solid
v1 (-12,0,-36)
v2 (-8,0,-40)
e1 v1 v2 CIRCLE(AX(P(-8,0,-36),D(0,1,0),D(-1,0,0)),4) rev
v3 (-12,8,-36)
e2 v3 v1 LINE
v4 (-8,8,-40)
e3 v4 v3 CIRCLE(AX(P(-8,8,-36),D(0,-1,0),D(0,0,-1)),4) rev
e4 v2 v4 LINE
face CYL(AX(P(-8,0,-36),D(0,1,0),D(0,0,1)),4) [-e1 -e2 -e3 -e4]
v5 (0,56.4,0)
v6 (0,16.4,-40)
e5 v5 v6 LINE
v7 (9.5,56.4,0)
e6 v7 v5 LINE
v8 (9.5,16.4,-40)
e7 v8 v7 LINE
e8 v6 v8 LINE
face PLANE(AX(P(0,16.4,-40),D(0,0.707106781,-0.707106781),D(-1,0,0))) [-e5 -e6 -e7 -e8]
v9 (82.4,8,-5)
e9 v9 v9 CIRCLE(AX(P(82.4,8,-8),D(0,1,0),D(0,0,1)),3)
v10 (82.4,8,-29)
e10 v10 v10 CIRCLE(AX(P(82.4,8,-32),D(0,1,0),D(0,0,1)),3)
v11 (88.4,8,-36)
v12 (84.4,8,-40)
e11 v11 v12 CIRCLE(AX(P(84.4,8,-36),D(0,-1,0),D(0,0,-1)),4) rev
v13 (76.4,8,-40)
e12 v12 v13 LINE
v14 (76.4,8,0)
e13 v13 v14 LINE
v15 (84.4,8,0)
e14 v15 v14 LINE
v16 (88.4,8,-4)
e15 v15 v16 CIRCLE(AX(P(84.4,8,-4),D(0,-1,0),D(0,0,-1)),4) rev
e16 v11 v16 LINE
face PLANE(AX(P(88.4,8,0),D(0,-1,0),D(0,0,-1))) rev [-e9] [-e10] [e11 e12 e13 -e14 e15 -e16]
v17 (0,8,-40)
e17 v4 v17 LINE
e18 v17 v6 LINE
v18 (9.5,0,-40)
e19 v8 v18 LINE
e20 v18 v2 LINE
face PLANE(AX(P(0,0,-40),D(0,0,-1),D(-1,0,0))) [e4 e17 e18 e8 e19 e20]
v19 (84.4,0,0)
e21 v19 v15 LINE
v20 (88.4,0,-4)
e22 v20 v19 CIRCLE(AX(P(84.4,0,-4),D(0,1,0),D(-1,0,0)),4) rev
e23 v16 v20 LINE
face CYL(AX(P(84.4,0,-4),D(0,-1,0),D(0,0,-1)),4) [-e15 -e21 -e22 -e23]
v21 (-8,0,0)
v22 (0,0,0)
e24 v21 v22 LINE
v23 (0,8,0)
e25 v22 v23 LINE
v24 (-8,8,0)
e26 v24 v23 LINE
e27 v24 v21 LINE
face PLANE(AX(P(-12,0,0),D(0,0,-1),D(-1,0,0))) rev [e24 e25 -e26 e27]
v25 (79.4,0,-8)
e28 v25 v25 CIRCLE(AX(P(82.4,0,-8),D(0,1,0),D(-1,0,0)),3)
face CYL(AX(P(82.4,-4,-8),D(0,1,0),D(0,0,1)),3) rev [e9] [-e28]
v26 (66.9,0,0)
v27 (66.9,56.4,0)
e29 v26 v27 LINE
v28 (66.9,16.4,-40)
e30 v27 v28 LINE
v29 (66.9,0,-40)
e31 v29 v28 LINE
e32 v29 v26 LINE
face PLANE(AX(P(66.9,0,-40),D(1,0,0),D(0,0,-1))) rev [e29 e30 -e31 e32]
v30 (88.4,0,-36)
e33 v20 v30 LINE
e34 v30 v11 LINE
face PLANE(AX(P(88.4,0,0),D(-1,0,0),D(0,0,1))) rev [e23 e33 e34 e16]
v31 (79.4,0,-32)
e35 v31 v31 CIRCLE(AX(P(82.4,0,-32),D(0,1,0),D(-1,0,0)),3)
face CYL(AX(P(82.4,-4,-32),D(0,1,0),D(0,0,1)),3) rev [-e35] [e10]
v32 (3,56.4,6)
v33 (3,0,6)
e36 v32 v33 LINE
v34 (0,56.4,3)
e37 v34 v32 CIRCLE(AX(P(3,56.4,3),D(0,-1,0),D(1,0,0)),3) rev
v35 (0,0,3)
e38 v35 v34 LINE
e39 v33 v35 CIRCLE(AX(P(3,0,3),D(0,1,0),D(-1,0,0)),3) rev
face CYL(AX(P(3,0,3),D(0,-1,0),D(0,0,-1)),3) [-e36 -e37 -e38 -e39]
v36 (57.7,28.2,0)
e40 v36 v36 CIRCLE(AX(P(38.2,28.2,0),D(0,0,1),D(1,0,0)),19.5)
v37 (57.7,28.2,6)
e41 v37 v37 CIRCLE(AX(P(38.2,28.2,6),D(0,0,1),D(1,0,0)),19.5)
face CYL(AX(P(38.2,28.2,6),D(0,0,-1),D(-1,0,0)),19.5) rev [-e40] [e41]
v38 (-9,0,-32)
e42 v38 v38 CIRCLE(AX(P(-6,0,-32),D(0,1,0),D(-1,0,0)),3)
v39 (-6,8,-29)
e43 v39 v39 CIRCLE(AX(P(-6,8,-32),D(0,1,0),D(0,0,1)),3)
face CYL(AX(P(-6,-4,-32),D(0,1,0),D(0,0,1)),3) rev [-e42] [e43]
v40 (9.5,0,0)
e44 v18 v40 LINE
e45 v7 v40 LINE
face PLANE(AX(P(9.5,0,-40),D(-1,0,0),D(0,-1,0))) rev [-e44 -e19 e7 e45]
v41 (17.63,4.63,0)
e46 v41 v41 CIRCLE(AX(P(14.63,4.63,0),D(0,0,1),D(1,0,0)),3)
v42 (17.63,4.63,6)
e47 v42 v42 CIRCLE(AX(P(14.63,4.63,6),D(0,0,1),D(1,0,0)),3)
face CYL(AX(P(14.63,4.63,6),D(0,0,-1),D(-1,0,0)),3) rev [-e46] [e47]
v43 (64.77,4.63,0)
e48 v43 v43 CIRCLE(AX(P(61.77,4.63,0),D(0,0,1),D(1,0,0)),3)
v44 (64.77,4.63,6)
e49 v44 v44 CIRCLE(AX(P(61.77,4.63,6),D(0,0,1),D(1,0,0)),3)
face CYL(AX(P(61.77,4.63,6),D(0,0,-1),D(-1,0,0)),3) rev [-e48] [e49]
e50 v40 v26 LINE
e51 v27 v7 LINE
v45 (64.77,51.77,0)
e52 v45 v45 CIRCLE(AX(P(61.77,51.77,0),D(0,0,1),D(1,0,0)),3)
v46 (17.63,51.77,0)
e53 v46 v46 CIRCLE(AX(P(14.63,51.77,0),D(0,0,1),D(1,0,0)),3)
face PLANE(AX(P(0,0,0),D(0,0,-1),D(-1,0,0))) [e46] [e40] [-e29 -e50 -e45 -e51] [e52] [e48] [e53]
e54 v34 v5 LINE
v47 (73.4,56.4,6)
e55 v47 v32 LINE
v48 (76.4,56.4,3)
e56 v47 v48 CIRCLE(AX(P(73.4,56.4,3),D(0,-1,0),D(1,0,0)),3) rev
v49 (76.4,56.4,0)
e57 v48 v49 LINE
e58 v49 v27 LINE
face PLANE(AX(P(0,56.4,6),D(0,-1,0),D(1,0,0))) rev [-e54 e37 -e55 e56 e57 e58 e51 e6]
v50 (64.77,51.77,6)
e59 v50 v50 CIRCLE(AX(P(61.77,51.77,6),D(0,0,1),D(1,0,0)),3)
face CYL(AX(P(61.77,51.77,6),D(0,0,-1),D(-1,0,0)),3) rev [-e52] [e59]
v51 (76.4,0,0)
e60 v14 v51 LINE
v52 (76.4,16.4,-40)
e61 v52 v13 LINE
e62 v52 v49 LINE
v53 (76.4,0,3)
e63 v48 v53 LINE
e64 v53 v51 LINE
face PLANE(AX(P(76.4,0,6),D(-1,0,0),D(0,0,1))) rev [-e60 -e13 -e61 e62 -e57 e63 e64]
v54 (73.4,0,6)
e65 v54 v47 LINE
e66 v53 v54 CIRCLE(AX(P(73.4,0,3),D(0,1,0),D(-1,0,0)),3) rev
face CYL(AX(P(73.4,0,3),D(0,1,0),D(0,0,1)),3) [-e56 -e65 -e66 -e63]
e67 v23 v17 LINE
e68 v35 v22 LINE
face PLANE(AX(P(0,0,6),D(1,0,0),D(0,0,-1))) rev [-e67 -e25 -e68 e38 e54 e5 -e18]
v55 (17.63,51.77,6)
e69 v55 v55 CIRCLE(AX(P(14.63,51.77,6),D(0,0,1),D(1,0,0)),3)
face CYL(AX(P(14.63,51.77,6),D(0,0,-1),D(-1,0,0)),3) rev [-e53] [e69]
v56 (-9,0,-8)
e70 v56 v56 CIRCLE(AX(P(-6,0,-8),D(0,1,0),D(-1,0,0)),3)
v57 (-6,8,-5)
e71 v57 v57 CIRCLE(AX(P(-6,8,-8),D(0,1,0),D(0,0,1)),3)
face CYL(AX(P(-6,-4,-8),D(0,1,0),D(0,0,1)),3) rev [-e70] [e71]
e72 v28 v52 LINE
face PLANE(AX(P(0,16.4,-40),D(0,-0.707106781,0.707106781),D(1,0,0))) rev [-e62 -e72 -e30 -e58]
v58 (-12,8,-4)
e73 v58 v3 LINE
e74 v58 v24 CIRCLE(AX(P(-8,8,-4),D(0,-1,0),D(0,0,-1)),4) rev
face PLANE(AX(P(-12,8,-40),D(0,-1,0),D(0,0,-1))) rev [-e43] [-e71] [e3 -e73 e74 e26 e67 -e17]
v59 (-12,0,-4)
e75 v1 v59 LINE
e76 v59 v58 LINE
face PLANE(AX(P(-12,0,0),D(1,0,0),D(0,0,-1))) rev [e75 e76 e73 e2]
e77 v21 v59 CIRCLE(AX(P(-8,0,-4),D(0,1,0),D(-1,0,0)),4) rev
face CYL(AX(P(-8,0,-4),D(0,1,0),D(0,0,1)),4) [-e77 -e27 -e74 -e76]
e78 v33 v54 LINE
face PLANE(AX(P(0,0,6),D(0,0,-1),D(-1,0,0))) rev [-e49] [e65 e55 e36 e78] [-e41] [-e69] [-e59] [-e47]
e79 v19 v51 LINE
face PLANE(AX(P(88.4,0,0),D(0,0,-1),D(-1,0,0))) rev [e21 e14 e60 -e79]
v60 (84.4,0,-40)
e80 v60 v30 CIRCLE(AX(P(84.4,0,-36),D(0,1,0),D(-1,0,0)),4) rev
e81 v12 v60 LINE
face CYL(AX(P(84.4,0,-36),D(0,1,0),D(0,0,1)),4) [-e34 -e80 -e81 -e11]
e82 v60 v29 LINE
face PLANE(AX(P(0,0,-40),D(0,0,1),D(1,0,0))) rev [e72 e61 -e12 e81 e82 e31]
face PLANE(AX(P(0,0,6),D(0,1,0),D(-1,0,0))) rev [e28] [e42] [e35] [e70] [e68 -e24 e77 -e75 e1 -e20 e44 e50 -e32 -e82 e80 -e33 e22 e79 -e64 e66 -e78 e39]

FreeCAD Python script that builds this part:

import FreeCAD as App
import Part
import Sketcher
Q = App.Units.Quantity


def edges_at(feature, points):
    """Names of the edges that pass closest to the given points."""
    edges = feature.Shape.Edges
    near = lambda p: min(range(len(edges)), key=lambda i: edges[i].distToShape(Part.Vertex(*p))[0])
    return sorted({f"Edge{near(p) + 1}" for p in points})

doc = App.newDocument("Part")
params = doc.addObject("Spreadsheet::Sheet", "Params")
for row, (alias, value) in enumerate([
    ("sketch1_diameter", "6 mm"),
    ("sketch1_diameter2", "39 mm"),
    ("sketch1_width", "76.4 mm"),
    ("sketch1_height", "56.4 mm"),
    ("pad1_length", "6 mm"),
    ("sketch2_width", "9.5 mm"),
    ("sketch2_height", "56.4 mm"),
    ("pad2_length", "40 mm"),
    ("fillet_radius", "3 mm"),
    ("sketch3_width", "8 mm"),
    ("sketch3_height", "40 mm"),
    ("pad3_length", "12 mm"),
    ("sketch4_width", "8 mm"),
    ("sketch4_height", "40 mm"),
    ("pad4_length", "12 mm"),
    ("fillet2_radius", "4 mm"),
    ("sketch5_diameter", "6 mm"),
    ("pocket1_length", "12 mm"),
    ("chamfer_size", "40 mm"),
], start=1):
    params.set(f"A{row}", alias)
    params.set(f"B{row}", "=" + value)
    params.setAlias(f"B{row}", alias)

body = doc.addObject("PartDesign::Body", "Body")

sketch1 = doc.addObject("Sketcher::SketchObject", "Sketch")
body.addObject(sketch1)
sketch1.AttachmentSupport = (doc.XY_Plane, [""])
sketch1.MapMode = "FlatFace"
sketch1.addGeometry([
    Part.LineSegment(App.Vector(0, 56.4, 0), App.Vector(0, 0, 0)),
    Part.LineSegment(App.Vector(0, 0, 0), App.Vector(76.4, 0, 0)),
    Part.LineSegment(App.Vector(76.4, 0, 0), App.Vector(76.4, 56.4, 0)),
    Part.LineSegment(App.Vector(76.4, 56.4, 0), App.Vector(0, 56.4, 0)),
    Part.Circle(App.Vector(14.6, 4.6, 0), App.Vector(0, 0, 1), 3),
    Part.Circle(App.Vector(61.8, 4.6, 0), App.Vector(0, 0, 1), 3),
    Part.Circle(App.Vector(14.6, 51.8, 0), App.Vector(0, 0, 1), 3),
    Part.Circle(App.Vector(38.2, 28.2, 0), App.Vector(0, 0, 1), 19.5),
    Part.Circle(App.Vector(61.8, 51.8, 0), App.Vector(0, 0, 1), 3),
], False)
sketch1.addConstraint([
    Sketcher.Constraint("Coincident", 0, 2, 1, 1),
    Sketcher.Constraint("Coincident", 1, 2, 2, 1),
    Sketcher.Constraint("Coincident", 2, 2, 3, 1),
    Sketcher.Constraint("Coincident", 3, 2, 0, 1),
    Sketcher.Constraint("Vertical", 0),
    Sketcher.Constraint("Horizontal", 1),
    Sketcher.Constraint("Vertical", 2),
    Sketcher.Constraint("Horizontal", 3),
    Sketcher.Constraint("Coincident", 0, 2, -1, 1),
    Sketcher.Constraint("Equal", 4, 5),
    Sketcher.Constraint("Equal", 5, 6),
    Sketcher.Constraint("Equal", 6, 8),
    Sketcher.Constraint("Horizontal", 4, 3, 5, 3),
    Sketcher.Constraint("Horizontal", 6, 3, 8, 3),
    Sketcher.Constraint("Vertical", 4, 3, 6, 3),
    Sketcher.Constraint("Vertical", 5, 3, 8, 3),
    Sketcher.Constraint("Diameter", 4, Q("6 mm")),
    Sketcher.Constraint("Diameter", 7, Q("39 mm")),
    Sketcher.Constraint("DistanceX", 1, 1, 1, 2, Q("76.4 mm")),
    Sketcher.Constraint("DistanceY", 0, 2, 0, 1, Q("56.4 mm")),
    Sketcher.Constraint("DistanceX", -1, 1, 7, 3, Q("38.2 mm")),
    Sketcher.Constraint("DistanceY", -1, 1, 7, 3, Q("28.2 mm")),
    Sketcher.Constraint("DistanceX", -1, 1, 4, 3, Q("14.63 mm")),
    Sketcher.Constraint("DistanceY", -1, 1, 4, 3, Q("4.63 mm")),
    Sketcher.Constraint("DistanceX", -1, 1, 5, 3, Q("61.77 mm")),
    Sketcher.Constraint("DistanceY", -1, 1, 6, 3, Q("51.77 mm")),
])
sketch1.setExpression("Constraints[16]", "Params.sketch1_diameter")
sketch1.setExpression("Constraints[17]", "Params.sketch1_diameter2")
sketch1.setExpression("Constraints[18]", "Params.sketch1_width")
sketch1.setExpression("Constraints[19]", "Params.sketch1_height")
pad1 = doc.addObject("PartDesign::Pad", "Pad")
body.addObject(pad1)
pad1.Profile = sketch1
pad1.setExpression("Length", "Params.pad1_length")

sketch2 = doc.addObject("Sketcher::SketchObject", "Sketch001")
body.addObject(sketch2)
sketch2.AttachmentSupport = (doc.XY_Plane, [""])
sketch2.MapMode = "FlatFace"
sketch2.addGeometry([
    Part.LineSegment(App.Vector(76, 56, 0), App.Vector(76, 0, 0)),
    Part.LineSegment(App.Vector(76, 0, 0), App.Vector(67, 0, 0)),
    Part.LineSegment(App.Vector(67, 0, 0), App.Vector(67, 56, 0)),
    Part.LineSegment(App.Vector(67, 56, 0), App.Vector(76, 56, 0)),
    Part.LineSegment(App.Vector(10, 56, 0), App.Vector(10, 0, 0)),
    Part.LineSegment(App.Vector(10, 0, 0), App.Vector(0, 0, 0)),
    Part.LineSegment(App.Vector(0, 0, 0), App.Vector(0, 56, 0)),
    Part.LineSegment(App.Vector(0, 56, 0), App.Vector(10, 56, 0)),
], False)
sketch2.addConstraint([
    Sketcher.Constraint("Coincident", 0, 2, 1, 1),
    Sketcher.Constraint("Coincident", 1, 2, 2, 1),
    Sketcher.Constraint("Coincident", 2, 2, 3, 1),
    Sketcher.Constraint("Coincident", 3, 2, 0, 1),
    Sketcher.Constraint("Coincident", 4, 2, 5, 1),
    Sketcher.Constraint("Coincident", 5, 2, 6, 1),
    Sketcher.Constraint("Coincident", 6, 2, 7, 1),
    Sketcher.Constraint("Coincident", 7, 2, 4, 1),
    Sketcher.Constraint("Vertical", 0),
    Sketcher.Constraint("Horizontal", 1),
    Sketcher.Constraint("Vertical", 2),
    Sketcher.Constraint("Horizontal", 3),
    Sketcher.Constraint("Vertical", 4),
    Sketcher.Constraint("Horizontal", 5),
    Sketcher.Constraint("Vertical", 6),
    Sketcher.Constraint("Horizontal", 7),
    Sketcher.Constraint("Coincident", 5, 2, -1, 1),
    Sketcher.Constraint("PointOnObject", 0, 2, -1),
    Sketcher.Constraint("Horizontal", 3, 2, 6, 2),
    Sketcher.Constraint("Equal", 3, 5),
    Sketcher.Constraint("DistanceX", 1, 2, 1, 1, Q("9.5 mm")),
    Sketcher.Constraint("DistanceY", 0, 2, 0, 1, Q("56.4 mm")),
    Sketcher.Constraint("DistanceX", -1, 1, 0, 2, Q("76.4 mm")),
])
sketch2.setExpression("Constraints[20]", "Params.sketch2_width")
sketch2.setExpression("Constraints[21]", "Params.sketch2_height")
pad2 = doc.addObject("PartDesign::Pad", "Pad001")
body.addObject(pad2)
pad2.Profile = sketch2
pad2.setExpression("Length", "Params.pad2_length")
pad2.Reversed = True
doc.recompute()

fillet = doc.addObject("PartDesign::Fillet", "Fillet")
body.addObject(fillet)
fillet.Base = (pad2, edges_at(pad2, [(76.4, 28.2, 6), (0, 28.2, 6)]))
fillet.setExpression("Radius", "Params.fillet_radius")

sketch3 = doc.addObject("Sketcher::SketchObject", "Sketch002")
body.addObject(sketch3)
sketch3.AttachmentSupport = (doc.YZ_Plane, [""])
sketch3.MapMode = "FlatFace"
sketch3.addGeometry([
    Part.LineSegment(App.Vector(8, -40, 0), App.Vector(0, -40, 0)),
    Part.LineSegment(App.Vector(0, -40, 0), App.Vector(0, 0, 0)),
    Part.LineSegment(App.Vector(0, 0, 0), App.Vector(8, 0, 0)),
    Part.LineSegment(App.Vector(8, 0, 0), App.Vector(8, -40, 0)),
], False)
sketch3.addConstraint([
    Sketcher.Constraint("Coincident", 0, 2, 1, 1),
    Sketcher.Constraint("Coincident", 1, 2, 2, 1),
    Sketcher.Constraint("Coincident", 2, 2, 3, 1),
    Sketcher.Constraint("Coincident", 3, 2, 0, 1),
    Sketcher.Constraint("Horizontal", 0),
    Sketcher.Constraint("Vertical", 1),
    Sketcher.Constraint("Horizontal", 2),
    Sketcher.Constraint("Vertical", 3),
    Sketcher.Constraint("Coincident", 1, 2, -1, 1),
    Sketcher.Constraint("DistanceX", 0, 2, 0, 1, Q("8 mm")),
    Sketcher.Constraint("DistanceY", 1, 1, 1, 2, Q("40 mm")),
])
sketch3.setExpression("Constraints[9]", "Params.sketch3_width")
sketch3.setExpression("Constraints[10]", "Params.sketch3_height")
pad3 = doc.addObject("PartDesign::Pad", "Pad002")
body.addObject(pad3)
pad3.Profile = sketch3
pad3.setExpression("Length", "Params.pad3_length")
pad3.Reversed = True

sketch4 = doc.addObject("Sketcher::SketchObject", "Sketch003")
body.addObject(sketch4)
sketch4.AttachmentSupport = (doc.YZ_Plane, [""])
sketch4.MapMode = "FlatFace"
sketch4.AttachmentOffset = App.Placement(App.Vector(0, 0, 76.4), App.Rotation())
sketch4.addGeometry([
    Part.LineSegment(App.Vector(8, 0, 0), App.Vector(0, 0, 0)),
    Part.LineSegment(App.Vector(0, 0, 0), App.Vector(0, -40, 0)),
    Part.LineSegment(App.Vector(0, -40, 0), App.Vector(8, -40, 0)),
    Part.LineSegment(App.Vector(8, -40, 0), App.Vector(8, 0, 0)),
], False)
sketch4.addConstraint([
    Sketcher.Constraint("Coincident", 0, 2, 1, 1),
    Sketcher.Constraint("Coincident", 1, 2, 2, 1),
    Sketcher.Constraint("Coincident", 2, 2, 3, 1),
    Sketcher.Constraint("Coincident", 3, 2, 0, 1),
    Sketcher.Constraint("Horizontal", 0),
    Sketcher.Constraint("Vertical", 1),
    Sketcher.Constraint("Horizontal", 2),
    Sketcher.Constraint("Vertical", 3),
    Sketcher.Constraint("Coincident", 0, 2, -1, 1),
    Sketcher.Constraint("DistanceX", 0, 2, 0, 1, Q("8 mm")),
    Sketcher.Constraint("DistanceY", 1, 2, 1, 1, Q("40 mm")),
])
sketch4.setExpression("Constraints[9]", "Params.sketch4_width")
sketch4.setExpression("Constraints[10]", "Params.sketch4_height")
pad4 = doc.addObject("PartDesign::Pad", "Pad003")
body.addObject(pad4)
pad4.Profile = sketch4
pad4.setExpression("Length", "Params.pad4_length")
doc.recompute()

fillet2 = doc.addObject("PartDesign::Fillet", "Fillet001")
body.addObject(fillet2)
fillet2.Base = (pad4, edges_at(pad4, [
    (-12, 4, -40),
    (-12, 4, 0),
    (88.4, 4, 0),
    (88.4, 4, -40),
]))
fillet2.setExpression("Radius", "Params.fillet2_radius")

sketch5 = doc.addObject("Sketcher::SketchObject", "Sketch004")
body.addObject(sketch5)
sketch5.AttachmentSupport = (doc.XZ_Plane, [""])
sketch5.MapMode = "FlatFace"
sketch5.AttachmentOffset = App.Placement(App.Vector(0, 0, -8), App.Rotation())
sketch5.addGeometry([
    Part.Circle(App.Vector(-6, -32, 0), App.Vector(0, 0, 1), 3),
    Part.Circle(App.Vector(-6, -8, 0), App.Vector(0, 0, 1), 3),
    Part.Circle(App.Vector(82.4, -32, 0), App.Vector(0, 0, 1), 3),
    Part.Circle(App.Vector(82.4, -8, 0), App.Vector(0, 0, 1), 3),
], False)
sketch5.addConstraint([
    Sketcher.Constraint("Equal", 0, 1),
    Sketcher.Constraint("Equal", 1, 2),
    Sketcher.Constraint("Equal", 2, 3),
    Sketcher.Constraint("Horizontal", 0, 3, 2, 3),
    Sketcher.Constraint("Horizontal", 1, 3, 3, 3),
    Sketcher.Constraint("Vertical", 0, 3, 1, 3),
    Sketcher.Constraint("Vertical", 2, 3, 3, 3),
    Sketcher.Constraint("Diameter", 0, Q("6 mm")),
    Sketcher.Constraint("DistanceX", 0, 3, -1, 1, Q("6 mm")),
    Sketcher.Constraint("DistanceY", 0, 3, -1, 1, Q("32 mm")),
    Sketcher.Constraint("DistanceY", 1, 3, -1, 1, Q("8 mm")),
    Sketcher.Constraint("DistanceX", -1, 1, 2, 3, Q("82.4 mm")),
])
sketch5.setExpression("Constraints[7]", "Params.sketch5_diameter")
pocket1 = doc.addObject("PartDesign::Pocket", "Pocket")
body.addObject(pocket1)
pocket1.Profile = sketch5
pocket1.setExpression("Length", "Params.pocket1_length")
pocket1.Reversed = True
doc.recompute()

chamfer = doc.addObject("PartDesign::Chamfer", "Chamfer")
body.addObject(chamfer)
chamfer.Base = (pocket1, edges_at(pocket1, [(4.75, 56.4, -40), (71.65, 56.4, -40)]))
chamfer.setExpression("Size", "Params.chamfer_size")

doc.recompute()
